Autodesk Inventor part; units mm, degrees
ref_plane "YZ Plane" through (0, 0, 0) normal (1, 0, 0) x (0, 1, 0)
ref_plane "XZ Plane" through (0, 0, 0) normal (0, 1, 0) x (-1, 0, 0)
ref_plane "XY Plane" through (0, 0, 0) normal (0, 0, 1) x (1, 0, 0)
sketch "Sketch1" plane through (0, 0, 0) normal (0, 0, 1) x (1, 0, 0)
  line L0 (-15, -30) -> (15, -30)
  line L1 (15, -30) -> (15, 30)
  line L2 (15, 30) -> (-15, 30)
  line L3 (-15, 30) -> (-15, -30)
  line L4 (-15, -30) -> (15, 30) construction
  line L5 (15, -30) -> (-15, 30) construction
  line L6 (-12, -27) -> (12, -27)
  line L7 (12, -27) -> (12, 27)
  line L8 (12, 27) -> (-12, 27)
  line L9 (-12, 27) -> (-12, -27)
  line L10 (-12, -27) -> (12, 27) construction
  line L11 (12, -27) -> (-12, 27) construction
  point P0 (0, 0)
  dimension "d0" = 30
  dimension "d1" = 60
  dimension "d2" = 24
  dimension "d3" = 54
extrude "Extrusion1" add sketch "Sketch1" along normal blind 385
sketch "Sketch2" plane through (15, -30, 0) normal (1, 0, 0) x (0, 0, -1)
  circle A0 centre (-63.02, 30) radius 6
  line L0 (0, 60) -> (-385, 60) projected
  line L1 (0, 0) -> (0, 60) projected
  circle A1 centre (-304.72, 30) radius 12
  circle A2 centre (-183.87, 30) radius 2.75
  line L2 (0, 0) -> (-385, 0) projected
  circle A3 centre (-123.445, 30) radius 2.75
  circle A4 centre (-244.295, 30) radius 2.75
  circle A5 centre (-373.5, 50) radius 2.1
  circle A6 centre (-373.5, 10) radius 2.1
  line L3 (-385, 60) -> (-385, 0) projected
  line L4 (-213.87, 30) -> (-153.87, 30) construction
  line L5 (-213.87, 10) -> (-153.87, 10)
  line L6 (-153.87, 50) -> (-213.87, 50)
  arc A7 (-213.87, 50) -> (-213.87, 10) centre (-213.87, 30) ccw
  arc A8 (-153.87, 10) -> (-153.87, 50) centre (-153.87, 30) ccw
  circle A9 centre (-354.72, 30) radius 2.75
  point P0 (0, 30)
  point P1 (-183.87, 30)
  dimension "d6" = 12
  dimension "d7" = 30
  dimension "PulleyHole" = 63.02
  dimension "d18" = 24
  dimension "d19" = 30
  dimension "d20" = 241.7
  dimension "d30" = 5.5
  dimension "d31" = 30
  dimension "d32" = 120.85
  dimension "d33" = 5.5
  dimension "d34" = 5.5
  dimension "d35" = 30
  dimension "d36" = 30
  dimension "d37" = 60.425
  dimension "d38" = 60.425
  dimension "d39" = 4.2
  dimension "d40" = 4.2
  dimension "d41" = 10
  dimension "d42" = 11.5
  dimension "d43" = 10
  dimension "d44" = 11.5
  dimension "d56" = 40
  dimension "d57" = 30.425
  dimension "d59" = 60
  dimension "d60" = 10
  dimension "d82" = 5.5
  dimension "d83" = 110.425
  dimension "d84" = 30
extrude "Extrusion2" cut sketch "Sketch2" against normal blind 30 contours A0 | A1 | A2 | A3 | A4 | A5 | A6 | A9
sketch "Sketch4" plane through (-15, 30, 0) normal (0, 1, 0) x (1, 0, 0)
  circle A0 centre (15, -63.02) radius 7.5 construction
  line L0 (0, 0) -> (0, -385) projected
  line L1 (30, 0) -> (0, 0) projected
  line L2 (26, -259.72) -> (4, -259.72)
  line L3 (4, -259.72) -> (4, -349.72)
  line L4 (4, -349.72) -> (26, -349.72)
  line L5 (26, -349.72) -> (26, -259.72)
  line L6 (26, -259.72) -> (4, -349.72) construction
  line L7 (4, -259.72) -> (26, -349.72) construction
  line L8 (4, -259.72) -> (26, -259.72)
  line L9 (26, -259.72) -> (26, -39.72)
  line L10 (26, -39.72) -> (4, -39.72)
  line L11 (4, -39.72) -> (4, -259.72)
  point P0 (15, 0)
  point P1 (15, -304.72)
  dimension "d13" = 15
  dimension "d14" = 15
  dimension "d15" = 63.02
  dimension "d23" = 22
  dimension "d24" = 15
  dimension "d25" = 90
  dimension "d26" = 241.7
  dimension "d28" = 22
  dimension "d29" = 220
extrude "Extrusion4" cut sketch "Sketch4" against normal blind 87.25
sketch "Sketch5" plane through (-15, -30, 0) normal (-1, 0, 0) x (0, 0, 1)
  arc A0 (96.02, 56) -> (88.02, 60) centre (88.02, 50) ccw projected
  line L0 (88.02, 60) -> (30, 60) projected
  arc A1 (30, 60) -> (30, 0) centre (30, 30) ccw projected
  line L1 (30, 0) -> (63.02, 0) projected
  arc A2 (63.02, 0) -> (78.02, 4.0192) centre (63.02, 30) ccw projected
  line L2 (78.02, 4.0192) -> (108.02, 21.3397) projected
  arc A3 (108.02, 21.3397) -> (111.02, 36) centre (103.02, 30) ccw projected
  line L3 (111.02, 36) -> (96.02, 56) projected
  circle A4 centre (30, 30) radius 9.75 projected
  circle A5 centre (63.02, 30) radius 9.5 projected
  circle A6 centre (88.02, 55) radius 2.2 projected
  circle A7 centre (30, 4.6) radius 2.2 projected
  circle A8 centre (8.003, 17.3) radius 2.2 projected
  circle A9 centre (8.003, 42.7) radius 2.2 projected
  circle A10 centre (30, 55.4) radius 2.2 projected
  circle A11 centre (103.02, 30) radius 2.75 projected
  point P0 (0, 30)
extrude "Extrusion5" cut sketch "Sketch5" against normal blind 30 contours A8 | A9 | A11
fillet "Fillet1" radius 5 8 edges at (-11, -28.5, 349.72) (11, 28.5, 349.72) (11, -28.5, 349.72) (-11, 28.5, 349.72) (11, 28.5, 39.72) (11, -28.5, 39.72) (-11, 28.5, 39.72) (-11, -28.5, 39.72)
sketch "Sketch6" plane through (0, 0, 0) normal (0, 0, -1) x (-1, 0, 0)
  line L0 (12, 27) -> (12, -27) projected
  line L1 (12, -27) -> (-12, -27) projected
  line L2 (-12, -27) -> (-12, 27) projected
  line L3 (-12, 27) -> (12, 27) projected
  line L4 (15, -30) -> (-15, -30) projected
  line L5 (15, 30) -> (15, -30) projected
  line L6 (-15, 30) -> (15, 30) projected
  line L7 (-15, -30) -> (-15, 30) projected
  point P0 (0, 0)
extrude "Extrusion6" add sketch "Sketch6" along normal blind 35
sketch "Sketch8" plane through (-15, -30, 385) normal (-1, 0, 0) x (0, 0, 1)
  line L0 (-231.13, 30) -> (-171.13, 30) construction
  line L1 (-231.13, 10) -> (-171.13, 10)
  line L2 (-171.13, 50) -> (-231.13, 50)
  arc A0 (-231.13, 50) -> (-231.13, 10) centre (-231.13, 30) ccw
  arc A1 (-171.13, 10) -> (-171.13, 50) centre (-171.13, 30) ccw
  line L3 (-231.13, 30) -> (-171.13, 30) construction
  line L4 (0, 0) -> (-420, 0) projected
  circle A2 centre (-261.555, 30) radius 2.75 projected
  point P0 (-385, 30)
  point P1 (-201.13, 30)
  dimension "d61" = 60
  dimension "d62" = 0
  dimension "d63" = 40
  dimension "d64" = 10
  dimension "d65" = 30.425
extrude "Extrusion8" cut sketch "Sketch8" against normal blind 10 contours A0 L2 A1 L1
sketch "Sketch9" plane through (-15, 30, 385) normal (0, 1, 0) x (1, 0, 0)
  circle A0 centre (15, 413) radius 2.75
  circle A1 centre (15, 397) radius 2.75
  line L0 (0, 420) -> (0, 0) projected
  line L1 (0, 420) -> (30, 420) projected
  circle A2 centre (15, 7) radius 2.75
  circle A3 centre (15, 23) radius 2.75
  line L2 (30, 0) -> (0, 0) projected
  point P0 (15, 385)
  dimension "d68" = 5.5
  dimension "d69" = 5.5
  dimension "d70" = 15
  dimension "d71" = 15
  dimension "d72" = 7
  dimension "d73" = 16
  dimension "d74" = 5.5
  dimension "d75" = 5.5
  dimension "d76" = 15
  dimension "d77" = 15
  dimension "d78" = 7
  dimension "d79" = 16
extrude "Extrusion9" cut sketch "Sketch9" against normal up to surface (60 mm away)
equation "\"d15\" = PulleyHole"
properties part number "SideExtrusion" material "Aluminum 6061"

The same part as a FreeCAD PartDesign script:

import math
import FreeCAD as App
import Part
import Sketcher


def edges_at(feature, points):
    """Names of the edges that pass closest to the given points."""
    edges = feature.Shape.Edges
    near = lambda p: min(range(len(edges)), key=lambda i: edges[i].distToShape(Part.Vertex(*p))[0])
    return sorted({f"Edge{near(p) + 1}" for p in points})


def add_polygon(sketch, points):
    """Adds a closed chain of lines whose ends are joined by coincident constraints."""
    first, n = sketch.GeometryCount, len(points)
    for a, b in zip(points, points[1:] + points[:1]):
        sketch.addGeometry(Part.LineSegment(App.Vector(*a, 0), App.Vector(*b, 0)), False)
    for i in range(n):
        sketch.addConstraint(Sketcher.Constraint("Coincident", first + i, 2, first + (i + 1) % n, 1))

doc = App.newDocument("Part")
body = doc.addObject("PartDesign::Body", "Body")

sketch1 = body.newObject("Sketcher::SketchObject", "Sketch")
sketch1.AttachmentSupport = (doc.getObject("XY_Plane"), [""])
sketch1.MapMode = "FlatFace"
add_polygon(sketch1, [(-15, 30), (-15, -30), (15, -30), (15, 30)])
add_polygon(sketch1, [(12, -27), (-12, -27), (-12, 27), (12, 27)])
sketch1.addConstraint([
    Sketcher.Constraint("Vertical", 0),
    Sketcher.Constraint("Horizontal", 1),
    Sketcher.Constraint("Vertical", 2),
    Sketcher.Constraint("Horizontal", 3),
    Sketcher.Constraint("Horizontal", 4),
    Sketcher.Constraint("Vertical", 5),
    Sketcher.Constraint("Horizontal", 6),
    Sketcher.Constraint("Vertical", 7),
    Sketcher.Constraint("Symmetric", 0, 2, 2, 2, -1, 1),
    Sketcher.Constraint("Symmetric", 4, 2, 6, 2, -1, 1),
    Sketcher.Constraint("DistanceX", 1, 1, 1, 2, 30.0),
    Sketcher.Constraint("DistanceX", 4, 2, 4, 1, 24.0),
    Sketcher.Constraint("DistanceY", 0, 2, 0, 1, 60.0),
    Sketcher.Constraint("DistanceY", 5, 1, 5, 2, 54.0),
])
pad1 = body.newObject("PartDesign::Pad", "Pad")
pad1.Profile = sketch1
pad1.Length = 385

sketch2 = body.newObject("Sketcher::SketchObject", "Sketch001")
sketch2.AttachmentSupport = (doc.getObject("YZ_Plane"), [""])
sketch2.MapMode = "FlatFace"
sketch2.AttachmentOffset = App.Placement(App.Vector(0, 0, 15), App.Rotation())
sketch2.addGeometry([
    Part.Circle(App.Vector(0, 63, 0), App.Vector(0, 0, 1), 6),
    Part.Circle(App.Vector(0, 304.7, 0), App.Vector(0, 0, 1), 12),
    Part.Circle(App.Vector(0, 183.9, 0), App.Vector(0, 0, 1), 2.8),
    Part.Circle(App.Vector(0, 123.4, 0), App.Vector(0, 0, 1), 2.8),
    Part.Circle(App.Vector(0, 244.3, 0), App.Vector(0, 0, 1), 2.8),
    Part.Circle(App.Vector(20, 373.5, 0), App.Vector(0, 0, 1), 2.1),
    Part.Circle(App.Vector(-20, 373.5, 0), App.Vector(0, 0, 1), 2.1),
    Part.Circle(App.Vector(0, 354.7, 0), App.Vector(0, 0, 1), 2.8),
], False)
sketch2.addConstraint([
    Sketcher.Constraint("Equal", 2, 3),
    Sketcher.Constraint("Equal", 3, 4),
    Sketcher.Constraint("Equal", 5, 6),
    Sketcher.Constraint("Equal", 4, 7),
    Sketcher.Constraint("Symmetric", 5, 3, 6, 3, -2),
    Sketcher.Constraint("PointOnObject", 0, 3, -2),
    Sketcher.Constraint("PointOnObject", 1, 3, -2),
    Sketcher.Constraint("PointOnObject", 2, 3, -2),
    Sketcher.Constraint("PointOnObject", 3, 3, -2),
    Sketcher.Constraint("PointOnObject", 4, 3, -2),
    Sketcher.Constraint("PointOnObject", 7, 3, -2),
    Sketcher.Constraint("Diameter", 0, 12.0),
    Sketcher.Constraint("Diameter", 1, 24.0),
    Sketcher.Constraint("Diameter", 2, 5.5),
    Sketcher.Constraint("Diameter", 5, 4.2),
    Sketcher.Constraint("DistanceX", 6, 3, 5, 3, 40.0),
    Sketcher.Constraint("DistanceY", 0, 3, 1, 3, 241.7),
    Sketcher.Constraint("DistanceY", -1, 1, 0, 3, 63.02),
    Sketcher.Constraint("DistanceY", 0, 3, 2, 3, 120.85),
    Sketcher.Constraint("DistanceY", 3, 3, 4, 3, 120.85),
    Sketcher.Constraint("DistanceY", 0, 3, 3, 3, 60.425),
    Sketcher.Constraint("DistanceY", 1, 3, 7, 3, 50.0),
    Sketcher.Constraint("DistanceY", -1, 1, 5, 3, 373.5),
])
pocket1 = body.newObject("PartDesign::Pocket", "Pocket")
pocket1.Profile = sketch2
pocket1.Length = 30

sketch3 = body.newObject("Sketcher::SketchObject", "Sketch002")
sketch3.AttachmentSupport = (doc.getObject("XZ_Plane"), [""])
sketch3.MapMode = "FlatFace"
sketch3.AttachmentOffset = App.Placement(App.Vector(0, 0, -30), App.Rotation())
add_polygon(sketch3, [(11, 350), (11, 40), (-11, 40), (-11, 350)])
sketch3.addConstraint([
    Sketcher.Constraint("Vertical", 0),
    Sketcher.Constraint("Horizontal", 1),
    Sketcher.Constraint("Vertical", 2),
    Sketcher.Constraint("Horizontal", 3),
    Sketcher.Constraint("DistanceX", 1, 2, 1, 1, 22.0),
    Sketcher.Constraint("DistanceY", 0, 2, 0, 1, 310.0),
    Sketcher.Constraint("DistanceX", -1, 1, 0, 2, 11.0),
    Sketcher.Constraint("DistanceY", -1, 1, 0, 2, 39.72),
])
pocket2 = body.newObject("PartDesign::Pocket", "Pocket001")
pocket2.Profile = sketch3
pocket2.Length = 87.25
pocket2.Reversed = True

sketch4 = body.newObject("Sketcher::SketchObject", "Sketch003")
sketch4.AttachmentSupport = (doc.getObject("YZ_Plane"), [""])
sketch4.MapMode = "FlatFace"
sketch4.AttachmentOffset = App.Placement(App.Vector(0, 0, -15), App.Rotation())
sketch4.addGeometry([
    Part.Circle(App.Vector(-12.7, 8, 0), App.Vector(0, 0, 1), 2.2),
    Part.Circle(App.Vector(12.7, 8, 0), App.Vector(0, 0, 1), 2.2),
    Part.Circle(App.Vector(0, 103, 0), App.Vector(0, 0, 1), 2.8),
], False)
sketch4.addConstraint([
    Sketcher.Constraint("Equal", 0, 1),
    Sketcher.Constraint("Symmetric", 0, 3, 1, 3, -2),
    Sketcher.Constraint("PointOnObject", 2, 3, -2),
    Sketcher.Constraint("Diameter", 0, 4.4),
    Sketcher.Constraint("Diameter", 2, 5.5),
    Sketcher.Constraint("DistanceX", 0, 3, -1, 1, 12.7),
    Sketcher.Constraint("DistanceY", -1, 1, 2, 3, 103.02),
    Sketcher.Constraint("DistanceY", -1, 1, 0, 3, 8.003),
])
pocket3 = body.newObject("PartDesign::Pocket", "Pocket002")
pocket3.Profile = sketch4
pocket3.Length = 30
pocket3.Reversed = True
doc.recompute()

fillet = body.newObject("PartDesign::Fillet", "Fillet")
fillet.Base = (pocket3, edges_at(pocket3, [
    (-11, -28.5, 349.72),
    (11, 28.5, 349.72),
    (11, -28.5, 349.72),
    (-11, 28.5, 349.72),
    (11, 28.5, 39.72),
    (11, -28.5, 39.72),
    (-11, 28.5, 39.72),
    (-11, -28.5, 39.72),
]))
fillet.Radius = 5

sketch5 = body.newObject("Sketcher::SketchObject", "Sketch004")
sketch5.AttachmentSupport = (doc.getObject("XY_Plane"), [""])
sketch5.MapMode = "FlatFace"
add_polygon(sketch5, [(15, -30), (-15, -30), (-15, 30), (15, 30)])
add_polygon(sketch5, [(12, 27), (-12, 27), (-12, -27), (12, -27)])
sketch5.addConstraint([
    Sketcher.Constraint("Horizontal", 0),
    Sketcher.Constraint("Vertical", 1),
    Sketcher.Constraint("Horizontal", 2),
    Sketcher.Constraint("Vertical", 3),
    Sketcher.Constraint("Horizontal", 4),
    Sketcher.Constraint("Vertical", 5),
    Sketcher.Constraint("Horizontal", 6),
    Sketcher.Constraint("Vertical", 7),
    Sketcher.Constraint("Symmetric", 0, 2, 2, 2, -1, 1),
    Sketcher.Constraint("Symmetric", 4, 2, 6, 2, -1, 1),
    Sketcher.Constraint("DistanceX", 0, 2, 0, 1, 30.0),
    Sketcher.Constraint("DistanceX", 4, 2, 4, 1, 24.0),
    Sketcher.Constraint("DistanceY", 1, 1, 1, 2, 60.0),
    Sketcher.Constraint("DistanceY", 5, 2, 5, 1, 54.0),
])
pad2 = body.newObject("PartDesign::Pad", "Pad001")
pad2.Profile = sketch5
pad2.Length = 35
pad2.Reversed = True

sketch6 = body.newObject("Sketcher::SketchObject", "Sketch005")
sketch6.AttachmentSupport = (doc.getObject("YZ_Plane"), [""])
sketch6.MapMode = "FlatFace"
sketch6.AttachmentOffset = App.Placement(App.Vector(0, 0, -15), App.Rotation())
sketch6.addGeometry([
    Part.ArcOfCircle(Part.Circle(App.Vector(0, 154, 0), App.Vector(0, 0, 1), 20), math.radians(180), math.radians(360)),
    Part.LineSegment(App.Vector(-20, 154, 0), App.Vector(-20, 214, 0)),
    Part.ArcOfCircle(Part.Circle(App.Vector(0, 214, 0), App.Vector(0, 0, 1), 20), math.radians(0), math.radians(180)),
    Part.LineSegment(App.Vector(20, 214, 0), App.Vector(20, 154, 0)),
], False)
sketch6.addConstraint([
    Sketcher.Constraint("Tangent", 0, 1, 1, 1),
    Sketcher.Constraint("Tangent", 1, 2, 2, 2),
    Sketcher.Constraint("Tangent", 2, 1, 3, 1),
    Sketcher.Constraint("Tangent", 3, 2, 0, 2),
    Sketcher.Constraint("Vertical", 1),
    Sketcher.Constraint("Vertical", 3),
    Sketcher.Constraint("PointOnObject", 0, 3, -2),
    Sketcher.Constraint("Radius", 0, 20.0),
    Sketcher.Constraint("DistanceY", 1, 1, 1, 2, 60.0),
    Sketcher.Constraint("DistanceY", -1, 1, 0, 3, 153.87),
])
pocket4 = body.newObject("PartDesign::Pocket", "Pocket003")
pocket4.Profile = sketch6
pocket4.Length = 10
pocket4.Reversed = True

sketch7 = body.newObject("Sketcher::SketchObject", "Sketch006")
sketch7.AttachmentSupport = (doc.getObject("XZ_Plane"), [""])
sketch7.MapMode = "FlatFace"
sketch7.AttachmentOffset = App.Placement(App.Vector(0, 0, -30), App.Rotation())
sketch7.addGeometry([
    Part.Circle(App.Vector(0, -28, 0), App.Vector(0, 0, 1), 2.8),
    Part.Circle(App.Vector(0, -12, 0), App.Vector(0, 0, 1), 2.8),
    Part.Circle(App.Vector(0, 378, 0), App.Vector(0, 0, 1), 2.8),
    Part.Circle(App.Vector(0, 362, 0), App.Vector(0, 0, 1), 2.8),
], False)
sketch7.addConstraint([
    Sketcher.Constraint("Equal", 0, 1),
    Sketcher.Constraint("Equal", 1, 2),
    Sketcher.Constraint("Equal", 2, 3),
    Sketcher.Constraint("PointOnObject", 0, 3, -2),
    Sketcher.Constraint("PointOnObject", 1, 3, -2),
    Sketcher.Constraint("PointOnObject", 2, 3, -2),
    Sketcher.Constraint("PointOnObject", 3, 3, -2),
    Sketcher.Constraint("Diameter", 0, 5.5),
    Sketcher.Constraint("DistanceY", 0, 3, 1, 3, 16.0),
    Sketcher.Constraint("DistanceY", 3, 3, 2, 3, 16.0),
    Sketcher.Constraint("DistanceY", 0, 3, -1, 1, 28.0),
    Sketcher.Constraint("DistanceY", -1, 1, 2, 3, 378.0),
])
pocket5 = body.newObject("PartDesign::Pocket", "Pocket004")
pocket5.Profile = sketch7
pocket5.Length = 60
pocket5.Reversed = True

doc.recompute()
